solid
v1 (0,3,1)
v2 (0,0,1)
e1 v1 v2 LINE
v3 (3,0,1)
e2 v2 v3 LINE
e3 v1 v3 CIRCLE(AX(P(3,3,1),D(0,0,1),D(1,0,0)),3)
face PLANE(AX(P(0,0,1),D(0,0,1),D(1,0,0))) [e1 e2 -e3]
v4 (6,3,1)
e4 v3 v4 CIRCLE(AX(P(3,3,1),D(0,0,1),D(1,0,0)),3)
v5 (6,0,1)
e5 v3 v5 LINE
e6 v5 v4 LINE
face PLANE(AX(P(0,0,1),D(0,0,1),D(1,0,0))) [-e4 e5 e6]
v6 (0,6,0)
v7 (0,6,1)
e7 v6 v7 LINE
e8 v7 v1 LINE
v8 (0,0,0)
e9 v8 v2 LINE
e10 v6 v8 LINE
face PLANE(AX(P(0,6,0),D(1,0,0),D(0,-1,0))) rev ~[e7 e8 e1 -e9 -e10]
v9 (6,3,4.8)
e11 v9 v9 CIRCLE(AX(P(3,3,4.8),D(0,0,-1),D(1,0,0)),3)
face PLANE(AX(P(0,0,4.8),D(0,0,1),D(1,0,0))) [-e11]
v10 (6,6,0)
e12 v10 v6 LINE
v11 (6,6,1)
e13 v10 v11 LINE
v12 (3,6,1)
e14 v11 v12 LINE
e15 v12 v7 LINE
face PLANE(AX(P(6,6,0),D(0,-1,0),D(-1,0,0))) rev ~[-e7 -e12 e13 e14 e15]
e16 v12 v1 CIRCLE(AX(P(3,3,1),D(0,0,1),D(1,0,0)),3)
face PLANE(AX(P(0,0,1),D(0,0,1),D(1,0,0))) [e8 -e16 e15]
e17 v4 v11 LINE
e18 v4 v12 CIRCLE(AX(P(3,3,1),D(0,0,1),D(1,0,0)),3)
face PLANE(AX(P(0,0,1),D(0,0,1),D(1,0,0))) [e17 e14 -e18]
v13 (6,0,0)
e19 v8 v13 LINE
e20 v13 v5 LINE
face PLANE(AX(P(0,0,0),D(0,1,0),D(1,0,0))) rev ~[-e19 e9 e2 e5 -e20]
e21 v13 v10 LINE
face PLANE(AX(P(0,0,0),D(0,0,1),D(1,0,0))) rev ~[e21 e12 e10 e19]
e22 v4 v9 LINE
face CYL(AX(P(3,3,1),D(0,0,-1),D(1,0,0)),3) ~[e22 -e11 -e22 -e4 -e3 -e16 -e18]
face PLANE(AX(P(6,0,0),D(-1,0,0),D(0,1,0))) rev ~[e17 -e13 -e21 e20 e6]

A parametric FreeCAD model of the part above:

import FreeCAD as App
import Part
import Sketcher

V = App.Vector
Q = App.Units.Quantity


def add_polygon(sketch, points):
    """Adds a closed chain of lines whose ends are joined by coincident constraints."""
    first, n = sketch.GeometryCount, len(points)
    for a, b in zip(points, points[1:] + points[:1]):
        sketch.addGeometry(Part.LineSegment(App.Vector(*a, 0), App.Vector(*b, 0)), False)
    for i in range(n):
        sketch.addConstraint(Sketcher.Constraint("Coincident", first + i, 2, first + (i + 1) % n, 1))

doc = App.newDocument("Part")
params = doc.addObject("Spreadsheet::Sheet", "Params")
for row, (alias, value) in enumerate([
    ("sketch1_width", "6 mm"),
    ("pad1_length", "1 mm"),
    ("sketch2_diameter", "6 mm"),
    ("pad2_length", "3.8 mm"),
], start=1):
    params.set(f"A{row}", alias)
    params.set(f"B{row}", "=" + value)
    params.setAlias(f"B{row}", alias)

body = doc.addObject("PartDesign::Body", "Body")

# Sketch on XY plane
sketch1 = body.newObject("Sketcher::SketchObject", "Sketch")
sketch1.AttachmentSupport = (doc.getObject("XY_Plane"), [""])
sketch1.MapMode = "FlatFace"
add_polygon(sketch1, [(0, 6), (0, 0), (6, 0), (6, 6)])  # lines 0-3
sketch1.addConstraint([
    Sketcher.Constraint("Vertical", 0),
    Sketcher.Constraint("Horizontal", 1),
    Sketcher.Constraint("Vertical", 2),
    Sketcher.Constraint("Horizontal", 3),
    Sketcher.Constraint("Coincident", 0, 2, -1, 1),
    Sketcher.Constraint("Equal", 3, 0),
    Sketcher.Constraint("DistanceX", 1, 1, 1, 2, Q("6 mm")),
])
sketch1.setExpression("Constraints[10]", "Params.sketch1_width")
pad1 = body.newObject("PartDesign::Pad", "Pad")
pad1.Profile = sketch1
pad1.setExpression("Length", "Params.pad1_length")

# Sketch on XY plane
sketch2 = body.newObject("Sketcher::SketchObject", "Sketch001")
sketch2.AttachmentSupport = (doc.getObject("XY_Plane"), [""])
sketch2.MapMode = "FlatFace"
sketch2.AttachmentOffset = App.Placement(V(0, 0, 1), App.Rotation())
sketch2.addGeometry(Part.Circle(V(3, 3, 0), V(0, 0, 1), 3), False)
sketch2.addConstraint([
    Sketcher.Constraint("Diameter", 0, Q("6 mm")),
    Sketcher.Constraint("DistanceX", -1, 1, 0, 3, Q("3 mm")),
    Sketcher.Constraint("DistanceY", -1, 1, 0, 3, Q("3 mm")),
])
sketch2.setExpression("Constraints[0]", "Params.sketch2_diameter")
pad2 = body.newObject("PartDesign::Pad", "Pad001")
pad2.Profile = sketch2
pad2.setExpression("Length", "Params.pad2_length")

doc.recompute()
